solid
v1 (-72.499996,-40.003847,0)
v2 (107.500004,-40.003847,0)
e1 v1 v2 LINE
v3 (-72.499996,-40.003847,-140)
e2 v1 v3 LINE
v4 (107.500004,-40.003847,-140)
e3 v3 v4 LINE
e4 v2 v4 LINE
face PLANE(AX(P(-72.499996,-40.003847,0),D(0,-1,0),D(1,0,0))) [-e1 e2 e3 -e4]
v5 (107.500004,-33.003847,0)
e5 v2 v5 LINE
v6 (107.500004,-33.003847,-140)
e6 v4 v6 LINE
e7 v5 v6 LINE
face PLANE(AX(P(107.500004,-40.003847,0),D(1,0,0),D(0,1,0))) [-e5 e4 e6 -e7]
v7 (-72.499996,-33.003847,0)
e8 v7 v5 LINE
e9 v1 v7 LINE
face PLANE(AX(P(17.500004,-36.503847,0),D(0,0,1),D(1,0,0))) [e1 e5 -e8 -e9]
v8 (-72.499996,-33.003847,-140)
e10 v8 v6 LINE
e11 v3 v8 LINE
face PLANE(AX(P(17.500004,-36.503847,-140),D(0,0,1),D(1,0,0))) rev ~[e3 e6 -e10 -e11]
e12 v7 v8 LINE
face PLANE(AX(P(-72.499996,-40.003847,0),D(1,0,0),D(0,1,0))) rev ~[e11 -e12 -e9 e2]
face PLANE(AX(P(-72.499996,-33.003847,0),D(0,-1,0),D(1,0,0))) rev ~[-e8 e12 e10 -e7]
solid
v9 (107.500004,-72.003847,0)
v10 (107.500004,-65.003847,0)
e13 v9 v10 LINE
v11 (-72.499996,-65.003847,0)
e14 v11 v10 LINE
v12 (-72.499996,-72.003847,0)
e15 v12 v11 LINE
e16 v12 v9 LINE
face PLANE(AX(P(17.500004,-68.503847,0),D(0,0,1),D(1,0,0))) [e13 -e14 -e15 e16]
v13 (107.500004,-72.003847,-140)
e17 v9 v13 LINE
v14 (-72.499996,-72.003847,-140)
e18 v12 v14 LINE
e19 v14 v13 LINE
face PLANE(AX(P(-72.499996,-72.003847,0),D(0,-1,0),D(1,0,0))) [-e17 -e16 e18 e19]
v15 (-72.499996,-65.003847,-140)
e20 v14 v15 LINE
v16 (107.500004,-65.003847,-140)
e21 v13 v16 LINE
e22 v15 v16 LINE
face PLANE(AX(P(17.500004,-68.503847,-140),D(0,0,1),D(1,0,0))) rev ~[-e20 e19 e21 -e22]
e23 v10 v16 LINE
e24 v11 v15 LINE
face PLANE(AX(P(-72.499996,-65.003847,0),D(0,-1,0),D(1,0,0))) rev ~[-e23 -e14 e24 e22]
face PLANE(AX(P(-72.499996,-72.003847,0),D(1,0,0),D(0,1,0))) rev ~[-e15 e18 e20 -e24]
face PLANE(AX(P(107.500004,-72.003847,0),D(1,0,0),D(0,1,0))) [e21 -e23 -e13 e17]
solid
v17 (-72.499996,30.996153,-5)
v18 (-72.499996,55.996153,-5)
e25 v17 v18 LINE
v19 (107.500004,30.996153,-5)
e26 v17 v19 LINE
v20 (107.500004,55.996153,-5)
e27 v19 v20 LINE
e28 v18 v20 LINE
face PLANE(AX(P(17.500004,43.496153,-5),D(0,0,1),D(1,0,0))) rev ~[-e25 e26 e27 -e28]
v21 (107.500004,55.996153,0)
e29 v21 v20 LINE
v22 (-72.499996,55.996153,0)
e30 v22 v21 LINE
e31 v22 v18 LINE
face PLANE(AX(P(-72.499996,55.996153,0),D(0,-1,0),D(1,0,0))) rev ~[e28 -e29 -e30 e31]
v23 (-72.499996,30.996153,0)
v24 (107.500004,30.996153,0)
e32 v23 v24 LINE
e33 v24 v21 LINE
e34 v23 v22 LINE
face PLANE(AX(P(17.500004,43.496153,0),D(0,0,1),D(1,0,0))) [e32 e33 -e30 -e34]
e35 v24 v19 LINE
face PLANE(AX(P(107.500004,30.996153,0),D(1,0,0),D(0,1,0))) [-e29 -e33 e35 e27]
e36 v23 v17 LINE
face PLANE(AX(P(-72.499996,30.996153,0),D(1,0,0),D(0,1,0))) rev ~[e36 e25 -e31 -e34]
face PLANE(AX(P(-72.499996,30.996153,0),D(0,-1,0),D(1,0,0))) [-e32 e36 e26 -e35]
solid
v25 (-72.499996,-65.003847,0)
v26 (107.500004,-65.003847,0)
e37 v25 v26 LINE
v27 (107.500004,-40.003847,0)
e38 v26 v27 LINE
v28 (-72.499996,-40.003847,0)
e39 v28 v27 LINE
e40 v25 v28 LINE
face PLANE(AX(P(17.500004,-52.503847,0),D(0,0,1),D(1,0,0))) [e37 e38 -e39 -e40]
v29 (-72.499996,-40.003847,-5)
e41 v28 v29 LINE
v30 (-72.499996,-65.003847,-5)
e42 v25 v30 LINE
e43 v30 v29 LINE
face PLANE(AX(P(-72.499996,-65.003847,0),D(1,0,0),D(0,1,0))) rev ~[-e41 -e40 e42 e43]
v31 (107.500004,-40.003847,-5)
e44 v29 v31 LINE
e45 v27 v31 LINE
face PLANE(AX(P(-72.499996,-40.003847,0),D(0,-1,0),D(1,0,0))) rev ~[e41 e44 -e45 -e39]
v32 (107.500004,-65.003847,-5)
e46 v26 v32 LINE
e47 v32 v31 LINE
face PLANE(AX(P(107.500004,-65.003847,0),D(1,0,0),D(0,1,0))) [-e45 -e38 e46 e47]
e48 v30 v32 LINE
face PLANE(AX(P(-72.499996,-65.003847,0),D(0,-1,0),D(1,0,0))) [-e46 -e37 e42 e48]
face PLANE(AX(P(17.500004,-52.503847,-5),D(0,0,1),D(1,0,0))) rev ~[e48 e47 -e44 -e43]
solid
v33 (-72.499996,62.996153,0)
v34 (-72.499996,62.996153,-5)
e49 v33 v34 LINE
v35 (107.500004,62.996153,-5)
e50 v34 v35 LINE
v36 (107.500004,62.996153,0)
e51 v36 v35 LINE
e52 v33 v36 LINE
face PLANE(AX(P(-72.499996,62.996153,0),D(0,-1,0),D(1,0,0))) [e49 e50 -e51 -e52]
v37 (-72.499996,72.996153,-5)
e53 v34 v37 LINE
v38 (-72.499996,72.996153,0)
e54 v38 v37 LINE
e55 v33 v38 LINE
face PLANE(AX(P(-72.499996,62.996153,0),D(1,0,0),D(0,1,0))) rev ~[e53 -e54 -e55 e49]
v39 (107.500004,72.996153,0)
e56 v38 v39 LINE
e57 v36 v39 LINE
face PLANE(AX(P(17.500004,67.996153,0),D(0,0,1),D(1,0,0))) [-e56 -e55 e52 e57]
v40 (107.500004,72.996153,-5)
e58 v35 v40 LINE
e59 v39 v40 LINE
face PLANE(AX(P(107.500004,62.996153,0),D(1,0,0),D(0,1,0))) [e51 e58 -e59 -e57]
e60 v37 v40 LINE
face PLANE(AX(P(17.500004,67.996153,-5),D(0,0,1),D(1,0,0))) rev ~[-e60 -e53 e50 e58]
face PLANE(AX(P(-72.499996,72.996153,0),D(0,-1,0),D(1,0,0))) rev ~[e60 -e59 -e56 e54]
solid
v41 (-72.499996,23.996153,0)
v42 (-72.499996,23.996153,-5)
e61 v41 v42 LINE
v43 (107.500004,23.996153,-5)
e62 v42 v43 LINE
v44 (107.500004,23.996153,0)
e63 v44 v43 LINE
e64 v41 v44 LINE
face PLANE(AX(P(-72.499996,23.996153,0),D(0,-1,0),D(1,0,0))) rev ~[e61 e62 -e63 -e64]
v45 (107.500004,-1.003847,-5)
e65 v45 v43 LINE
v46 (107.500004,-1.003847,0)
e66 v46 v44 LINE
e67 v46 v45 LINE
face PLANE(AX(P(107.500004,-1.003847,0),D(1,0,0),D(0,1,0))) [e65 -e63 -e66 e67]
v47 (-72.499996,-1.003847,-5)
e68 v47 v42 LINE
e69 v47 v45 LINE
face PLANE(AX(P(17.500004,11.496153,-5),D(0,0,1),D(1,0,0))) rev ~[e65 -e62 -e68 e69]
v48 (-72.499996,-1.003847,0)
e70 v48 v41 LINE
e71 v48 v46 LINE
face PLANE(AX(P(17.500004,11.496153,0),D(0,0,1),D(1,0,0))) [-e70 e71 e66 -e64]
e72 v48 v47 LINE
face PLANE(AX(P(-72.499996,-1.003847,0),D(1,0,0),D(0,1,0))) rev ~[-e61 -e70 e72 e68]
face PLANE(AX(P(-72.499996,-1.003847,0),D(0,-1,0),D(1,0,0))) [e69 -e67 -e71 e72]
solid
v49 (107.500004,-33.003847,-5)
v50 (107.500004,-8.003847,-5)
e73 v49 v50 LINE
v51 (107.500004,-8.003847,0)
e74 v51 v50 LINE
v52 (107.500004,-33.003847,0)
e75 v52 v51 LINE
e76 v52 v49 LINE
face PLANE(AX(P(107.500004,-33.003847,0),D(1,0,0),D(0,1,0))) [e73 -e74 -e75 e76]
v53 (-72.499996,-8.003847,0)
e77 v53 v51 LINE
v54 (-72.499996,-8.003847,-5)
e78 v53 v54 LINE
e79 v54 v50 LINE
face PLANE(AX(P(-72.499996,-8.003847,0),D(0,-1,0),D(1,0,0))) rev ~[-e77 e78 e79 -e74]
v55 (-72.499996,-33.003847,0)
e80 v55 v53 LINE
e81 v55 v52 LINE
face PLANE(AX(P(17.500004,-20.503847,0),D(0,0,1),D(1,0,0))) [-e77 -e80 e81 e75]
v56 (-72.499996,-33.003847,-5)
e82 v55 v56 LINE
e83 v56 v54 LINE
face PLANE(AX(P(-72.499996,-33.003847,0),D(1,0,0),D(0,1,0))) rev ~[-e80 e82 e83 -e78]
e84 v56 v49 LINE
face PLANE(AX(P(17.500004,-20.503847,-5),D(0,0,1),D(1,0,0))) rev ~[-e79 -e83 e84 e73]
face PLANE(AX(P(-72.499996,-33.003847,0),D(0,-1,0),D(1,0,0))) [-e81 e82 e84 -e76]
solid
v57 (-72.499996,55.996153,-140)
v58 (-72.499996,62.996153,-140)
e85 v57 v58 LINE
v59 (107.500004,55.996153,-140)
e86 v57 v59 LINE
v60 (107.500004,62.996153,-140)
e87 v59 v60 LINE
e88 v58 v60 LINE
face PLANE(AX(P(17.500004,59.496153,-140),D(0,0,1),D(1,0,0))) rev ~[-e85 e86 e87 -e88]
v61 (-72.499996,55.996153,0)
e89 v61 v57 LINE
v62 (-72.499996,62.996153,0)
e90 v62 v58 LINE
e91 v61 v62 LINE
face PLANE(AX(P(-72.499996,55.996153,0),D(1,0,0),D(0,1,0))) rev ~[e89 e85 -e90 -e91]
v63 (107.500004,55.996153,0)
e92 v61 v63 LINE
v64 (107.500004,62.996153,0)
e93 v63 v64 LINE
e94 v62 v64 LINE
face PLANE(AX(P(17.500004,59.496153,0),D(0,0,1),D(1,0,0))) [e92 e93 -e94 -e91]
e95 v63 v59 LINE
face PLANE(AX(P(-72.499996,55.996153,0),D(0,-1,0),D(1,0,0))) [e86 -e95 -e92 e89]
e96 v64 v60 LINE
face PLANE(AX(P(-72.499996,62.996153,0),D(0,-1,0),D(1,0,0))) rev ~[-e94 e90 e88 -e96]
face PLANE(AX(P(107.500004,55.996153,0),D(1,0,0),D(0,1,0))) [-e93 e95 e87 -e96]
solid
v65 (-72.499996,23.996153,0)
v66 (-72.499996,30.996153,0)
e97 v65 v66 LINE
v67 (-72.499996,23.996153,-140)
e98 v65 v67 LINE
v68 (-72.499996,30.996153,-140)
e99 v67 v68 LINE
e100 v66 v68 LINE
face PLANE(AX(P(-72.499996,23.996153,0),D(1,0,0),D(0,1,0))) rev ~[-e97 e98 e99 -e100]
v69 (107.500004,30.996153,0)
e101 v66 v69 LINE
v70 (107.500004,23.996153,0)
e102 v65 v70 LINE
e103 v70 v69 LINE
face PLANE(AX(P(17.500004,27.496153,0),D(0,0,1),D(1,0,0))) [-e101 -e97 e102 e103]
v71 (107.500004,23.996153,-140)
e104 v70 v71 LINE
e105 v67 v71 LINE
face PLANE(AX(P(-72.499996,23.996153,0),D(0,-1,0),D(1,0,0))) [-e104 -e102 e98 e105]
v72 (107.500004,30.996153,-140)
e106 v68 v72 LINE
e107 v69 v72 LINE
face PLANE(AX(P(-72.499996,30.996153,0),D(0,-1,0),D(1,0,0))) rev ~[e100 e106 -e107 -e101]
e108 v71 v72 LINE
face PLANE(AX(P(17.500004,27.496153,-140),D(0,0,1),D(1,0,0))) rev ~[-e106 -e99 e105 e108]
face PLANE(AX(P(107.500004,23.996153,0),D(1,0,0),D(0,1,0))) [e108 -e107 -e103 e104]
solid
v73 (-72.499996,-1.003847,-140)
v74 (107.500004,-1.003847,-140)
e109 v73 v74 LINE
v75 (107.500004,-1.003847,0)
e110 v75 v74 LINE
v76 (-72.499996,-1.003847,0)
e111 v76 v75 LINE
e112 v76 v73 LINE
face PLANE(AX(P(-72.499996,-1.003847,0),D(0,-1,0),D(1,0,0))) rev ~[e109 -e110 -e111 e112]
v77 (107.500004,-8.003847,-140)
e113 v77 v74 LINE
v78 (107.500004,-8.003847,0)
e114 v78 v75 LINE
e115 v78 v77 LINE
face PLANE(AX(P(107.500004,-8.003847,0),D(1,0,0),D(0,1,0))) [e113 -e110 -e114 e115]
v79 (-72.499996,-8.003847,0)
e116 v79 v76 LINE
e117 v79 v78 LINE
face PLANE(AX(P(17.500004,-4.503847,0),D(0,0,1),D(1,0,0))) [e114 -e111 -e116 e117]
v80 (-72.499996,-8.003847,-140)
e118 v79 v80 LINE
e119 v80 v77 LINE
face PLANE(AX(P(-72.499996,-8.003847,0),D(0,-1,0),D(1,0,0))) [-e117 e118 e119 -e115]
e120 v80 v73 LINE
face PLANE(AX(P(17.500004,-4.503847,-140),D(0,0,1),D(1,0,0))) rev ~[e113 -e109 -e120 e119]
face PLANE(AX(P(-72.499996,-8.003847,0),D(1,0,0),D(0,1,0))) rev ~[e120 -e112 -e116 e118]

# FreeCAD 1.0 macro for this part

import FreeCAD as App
import Part
import Sketcher

V = App.Vector
Q = App.Units.Quantity


def add_polygon(sketch, points):
    """Adds a closed chain of lines whose ends are joined by coincident constraints."""
    first, n = sketch.GeometryCount, len(points)
    for a, b in zip(points, points[1:] + points[:1]):
        sketch.addGeometry(Part.LineSegment(App.Vector(*a, 0), App.Vector(*b, 0)), False)
    for i in range(n):
        sketch.addConstraint(Sketcher.Constraint("Coincident", first + i, 2, first + (i + 1) % n, 1))

doc = App.newDocument("Part")
body = doc.addObject("PartDesign::Body", "Body")
body.AllowCompound = True

sketch1 = doc.addObject("Sketcher::SketchObject", "Sketch")
body.addObject(sketch1)
sketch1.AttachmentSupport = (doc.XY_Plane, [""])
sketch1.MapMode = "FlatFace"
add_polygon(sketch1, [(-72, 56), (-72, 31), (108, 31), (108, 56)])
add_polygon(sketch1, [(-72, 73), (-72, 63), (108, 63), (108, 73)])
add_polygon(sketch1, [(-72, 24), (-72, -1), (108, -1), (108, 24)])
add_polygon(sketch1, [(-72, -8), (-72, -33), (108, -33), (108, -8)])
add_polygon(sketch1, [(-72, -40), (-72, -65), (108, -65), (108, -40)])
sketch1.addConstraint([
    Sketcher.Constraint("Vertical", 0),
    Sketcher.Constraint("Horizontal", 1),
    Sketcher.Constraint("Vertical", 2),
    Sketcher.Constraint("Horizontal", 3),
    Sketcher.Constraint("Vertical", 4),
    Sketcher.Constraint("Horizontal", 5),
    Sketcher.Constraint("Vertical", 6),
    Sketcher.Constraint("Horizontal", 7),
    Sketcher.Constraint("Vertical", 8),
    Sketcher.Constraint("Horizontal", 9),
    Sketcher.Constraint("Vertical", 10),
    Sketcher.Constraint("Horizontal", 11),
    Sketcher.Constraint("Vertical", 12),
    Sketcher.Constraint("Horizontal", 13),
    Sketcher.Constraint("Vertical", 14),
    Sketcher.Constraint("Horizontal", 15),
    Sketcher.Constraint("Vertical", 16),
    Sketcher.Constraint("Horizontal", 17),
    Sketcher.Constraint("Vertical", 18),
    Sketcher.Constraint("Horizontal", 19),
    Sketcher.Constraint("Vertical", 3, 2, 4, 2),
    Sketcher.Constraint("Vertical", 2, 2, 5, 2),
    Sketcher.Constraint("Vertical", 7, 2, 8, 2),
    Sketcher.Constraint("Vertical", 6, 2, 9, 2),
    Sketcher.Constraint("Vertical", 11, 2, 12, 2),
    Sketcher.Constraint("Vertical", 10, 2, 13, 2),
    Sketcher.Constraint("Vertical", 15, 2, 16, 2),
    Sketcher.Constraint("Vertical", 14, 2, 17, 2),
    Sketcher.Constraint("Equal", 2, 8),
    Sketcher.Constraint("Equal", 10, 12),
    Sketcher.Constraint("Equal", 14, 16),
    Sketcher.Constraint("DistanceX", 1, 1, 1, 2, Q("180 mm")),
    Sketcher.Constraint("DistanceY", 0, 2, 0, 1, Q("25 mm")),
    Sketcher.Constraint("DistanceY", 4, 2, 4, 1, Q("10 mm")),
    Sketcher.Constraint("DistanceY", 3, 2, 4, 2, Q("7 mm")),
    Sketcher.Constraint("DistanceY", 8, 2, 0, 2, Q("32 mm")),
    Sketcher.Constraint("DistanceY", 12, 2, 8, 2, Q("32 mm")),
    Sketcher.Constraint("DistanceY", 16, 2, 12, 2, Q("32 mm")),
    Sketcher.Constraint("DistanceX", 0, 2, -1, 1, Q("72.499996 mm")),
    Sketcher.Constraint("DistanceY", -1, 1, 0, 2, Q("30.996153 mm")),
])
pad1 = doc.addObject("PartDesign::Pad", "Pad")
body.addObject(pad1)
pad1.Profile = sketch1
pad1.Length = 5
pad1.Reversed = True
body2 = doc.addObject("PartDesign::Body", "Body001")
body2.AllowCompound = True

sketch2 = doc.addObject("Sketcher::SketchObject", "Sketch001")
body2.addObject(sketch2)
sketch2.AttachmentSupport = (doc.getObject("XY_Plane001"), [""])
sketch2.MapMode = "FlatFace"
add_polygon(sketch2, [(-72, -33), (-72, -40), (108, -40), (108, -33)])
add_polygon(sketch2, [(-72, -1), (-72, -8), (108, -8), (108, -1)])
add_polygon(sketch2, [(-72, 31), (-72, 24), (108, 24), (108, 31)])
add_polygon(sketch2, [(-72, 63), (-72, 56), (108, 56), (108, 63)])
add_polygon(sketch2, [(-72, -65), (-72, -72), (108, -72), (108, -65)])
sketch2.addConstraint([
    Sketcher.Constraint("Vertical", 0),
    Sketcher.Constraint("Horizontal", 1),
    Sketcher.Constraint("Vertical", 2),
    Sketcher.Constraint("Horizontal", 3),
    Sketcher.Constraint("Vertical", 4),
    Sketcher.Constraint("Horizontal", 5),
    Sketcher.Constraint("Vertical", 6),
    Sketcher.Constraint("Horizontal", 7),
    Sketcher.Constraint("Vertical", 8),
    Sketcher.Constraint("Horizontal", 9),
    Sketcher.Constraint("Vertical", 10),
    Sketcher.Constraint("Horizontal", 11),
    Sketcher.Constraint("Vertical", 12),
    Sketcher.Constraint("Horizontal", 13),
    Sketcher.Constraint("Vertical", 14),
    Sketcher.Constraint("Horizontal", 15),
    Sketcher.Constraint("Vertical", 16),
    Sketcher.Constraint("Horizontal", 17),
    Sketcher.Constraint("Vertical", 18),
    Sketcher.Constraint("Horizontal", 19),
    Sketcher.Constraint("Vertical", 3, 2, 4, 2),
    Sketcher.Constraint("Vertical", 2, 2, 5, 2),
    Sketcher.Constraint("Vertical", 7, 2, 8, 2),
    Sketcher.Constraint("Vertical", 6, 2, 9, 2),
    Sketcher.Constraint("Vertical", 11, 2, 12, 2),
    Sketcher.Constraint("Vertical", 10, 2, 13, 2),
    Sketcher.Constraint("Vertical", 15, 2, 16, 2),
    Sketcher.Constraint("Vertical", 14, 2, 17, 2),
    Sketcher.Constraint("Equal", 2, 4),
    Sketcher.Constraint("Equal", 6, 8),
    Sketcher.Constraint("Equal", 10, 12),
    Sketcher.Constraint("Equal", 14, 16),
    Sketcher.Constraint("DistanceX", 1, 1, 1, 2, Q("180 mm")),
    Sketcher.Constraint("DistanceY", 0, 2, 0, 1, Q("7 mm")),
    Sketcher.Constraint("DistanceY", 3, 2, 4, 2, Q("25 mm")),
    Sketcher.Constraint("DistanceY", 7, 2, 8, 2, Q("25 mm")),
    Sketcher.Constraint("DistanceY", 11, 2, 12, 2, Q("25 mm")),
    Sketcher.Constraint("DistanceY", 16, 2, 0, 2, Q("32 mm")),
    Sketcher.Constraint("DistanceX", 0, 2, -1, 1, Q("72.499996 mm")),
    Sketcher.Constraint("DistanceY", 0, 2, -1, 1, Q("40.003847 mm")),
])
pad2 = doc.addObject("PartDesign::Pad", "Pad001")
body2.addObject(pad2)
pad2.Profile = sketch2
pad2.Length = 140
pad2.Reversed = True

doc.recompute()
